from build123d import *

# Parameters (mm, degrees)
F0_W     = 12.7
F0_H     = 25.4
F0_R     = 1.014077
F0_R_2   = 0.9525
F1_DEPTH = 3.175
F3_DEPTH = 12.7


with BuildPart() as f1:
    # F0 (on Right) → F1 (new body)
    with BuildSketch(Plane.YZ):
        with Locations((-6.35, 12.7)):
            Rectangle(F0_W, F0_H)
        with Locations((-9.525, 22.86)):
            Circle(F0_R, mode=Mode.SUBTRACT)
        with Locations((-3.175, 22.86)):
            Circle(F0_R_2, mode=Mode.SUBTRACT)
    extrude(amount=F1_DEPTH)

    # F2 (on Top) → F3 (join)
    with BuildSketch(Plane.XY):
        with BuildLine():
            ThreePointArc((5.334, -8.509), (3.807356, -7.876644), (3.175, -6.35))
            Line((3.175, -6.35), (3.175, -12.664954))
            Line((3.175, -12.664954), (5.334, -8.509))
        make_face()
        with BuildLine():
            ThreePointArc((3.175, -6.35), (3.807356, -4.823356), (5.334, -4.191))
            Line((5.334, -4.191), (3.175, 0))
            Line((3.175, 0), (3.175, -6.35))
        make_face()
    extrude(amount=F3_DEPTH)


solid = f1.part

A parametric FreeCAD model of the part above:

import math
import FreeCAD as App
import Part
import Sketcher
from FreeCAD import Vector
Q = App.Units.Quantity

doc = App.newDocument("Part")
params = doc.addObject("Spreadsheet::Sheet", "Params")
for row, (alias, value) in enumerate([
    ("sketch1_height", "1 in"),
    ("sketch1_diameter", "0.075 in"),
    ("sketch1_width", "0.5 in"),
    ("pad1_length", "0.125 in"),
    ("sketch2_radius", "0.0849999 in"),
    ("sketch2_height", "0.25 in"),
    ("pad2_length", "0.5 in"),
], start=1):
    params.set(f"A{row}", alias)
    params.set(f"B{row}", "=" + value)
    params.setAlias(f"B{row}", alias)

body = doc.addObject("PartDesign::Body", "Body")

# Sketch on YZ plane
sketch1 = body.newObject("Sketcher::SketchObject", "Sketch")
sketch1.AttachmentSupport = (doc.getObject("YZ_Plane"), [""])
sketch1.MapMode = "FlatFace"
sketch1.addGeometry([
    Part.LineSegment(Vector(-12.7, 25.4, 0), Vector(-12.7, 0, 0)),  # 0
    Part.LineSegment(Vector(-12.7, 0, 0), Vector(0, 0, 0)),  # 1
    Part.LineSegment(Vector(0, 0, 0), Vector(0, 25.4, 0)),  # 2
    Part.LineSegment(Vector(0, 25.4, 0), Vector(-12.7, 25.4, 0)),  # 3
    Part.Circle(Vector(-9.5, 22.9, 0), Vector(0, 0, 1), 1),  # 4
    Part.Circle(Vector(-3.2, 22.9, 0), Vector(0, 0, 1), 1),  # 5
], False)
sketch1.addConstraint([
    Sketcher.Constraint("Coincident", 0, 2, 1, 1),
    Sketcher.Constraint("Coincident", 1, 2, 2, 1),
    Sketcher.Constraint("Coincident", 2, 2, 3, 1),
    Sketcher.Constraint("Coincident", 3, 2, 0, 1),
    Sketcher.Constraint("Vertical", 0),
    Sketcher.Constraint("Horizontal", 1),
    Sketcher.Constraint("Vertical", 2),
    Sketcher.Constraint("Horizontal", 3),
    Sketcher.Constraint("Coincident", 1, 2, -1, 1),
    Sketcher.Constraint("Horizontal", 4, 3, 5, 3),
    Sketcher.Constraint("DistanceY", 0, 2, 0, 1, Q("1 in")),
    Sketcher.Constraint("Diameter", 5, Q("0.075 in")),
    Sketcher.Constraint("DistanceX", 1, 1, 1, 2, Q("0.5 in")),
    Sketcher.Constraint("DistanceY", -1, 1, 4, 3, Q("0.9 in")),
    Sketcher.Constraint("DistanceX", 4, 3, 5, 3, Q("0.25 in")),
    Sketcher.Constraint("DistanceX", 4, 3, -1, 1, Q("0.375 in")),
    Sketcher.Constraint("Diameter", 4, 2.028154),
])
sketch1.setExpression("Constraints[10]", "Params.sketch1_height")
sketch1.setExpression("Constraints[11]", "Params.sketch1_diameter")
sketch1.setExpression("Constraints[12]", "Params.sketch1_width")
pad1 = body.newObject("PartDesign::Pad", "Pad")
pad1.Profile = sketch1
pad1.setExpression("Length", "Params.pad1_length")

# Sketch on XY plane
sketch2 = body.newObject("Sketcher::SketchObject", "Sketch001")
sketch2.AttachmentSupport = (doc.getObject("XY_Plane"), [""])
sketch2.MapMode = "FlatFace"
sketch2.addGeometry([
    Part.ArcOfCircle(Part.Circle(Vector(5.3, -6.4, 0), Vector(0, 0, 1), 2.2), math.radians(180), math.radians(270)),  # 0
    Part.LineSegment(Vector(3.2, -6.3, 0), Vector(3.2, -12.7, 0)),  # 1
    Part.LineSegment(Vector(3.2, -12.7, 0), Vector(5.3, -8.5, 0)),  # 2
    Part.ArcOfCircle(Part.Circle(Vector(5.3, -6.3, 0), Vector(0, 0, 1), 2.2), math.radians(90), math.radians(180)),  # 3
    Part.LineSegment(Vector(5.3, -4.2, 0), Vector(3.2, 0, 0)),  # 4
    Part.LineSegment(Vector(3.2, 0, 0), Vector(3.2, -6.3, 0)),  # 5
], False)
sketch2.addConstraint([
    Sketcher.Constraint("Tangent", 0, 1, 1, 1),
    Sketcher.Constraint("Coincident", 1, 2, 2, 1),
    Sketcher.Constraint("Coincident", 2, 2, 0, 2),
    Sketcher.Constraint("Coincident", 3, 1, 4, 1),
    Sketcher.Constraint("Coincident", 4, 2, 5, 1),
    Sketcher.Constraint("Tangent", 5, 2, 3, 2),
    Sketcher.Constraint("Vertical", 1),
    Sketcher.Constraint("Vertical", 5),
    Sketcher.Constraint("Coincident", 3, 3, 0, 3),
    Sketcher.Constraint("Equal", 0, 3),
    Sketcher.Constraint("PointOnObject", 4, 2, -1),
    Sketcher.Constraint("Vertical", 3, 3, 2, 2),
    Sketcher.Constraint("Vertical", 2, 2, 3, 1),
    Sketcher.Constraint("Radius", 0, Q("0.0849999 in")),
    Sketcher.Constraint("DistanceY", 5, 2, 5, 1, Q("0.25 in")),
    Sketcher.Constraint("DistanceX", -1, 1, 0, 3, Q("0.2099999 in")),
    Sketcher.Constraint("DistanceY", 1, 2, 1, 1, 6.314954),
])
sketch2.setExpression("Constraints[13]", "Params.sketch2_radius")
sketch2.setExpression("Constraints[14]", "Params.sketch2_height")
pad2 = body.newObject("PartDesign::Pad", "Pad001")
pad2.Profile = sketch2
pad2.setExpression("Length", "Params.pad2_length")

doc.recompute()
